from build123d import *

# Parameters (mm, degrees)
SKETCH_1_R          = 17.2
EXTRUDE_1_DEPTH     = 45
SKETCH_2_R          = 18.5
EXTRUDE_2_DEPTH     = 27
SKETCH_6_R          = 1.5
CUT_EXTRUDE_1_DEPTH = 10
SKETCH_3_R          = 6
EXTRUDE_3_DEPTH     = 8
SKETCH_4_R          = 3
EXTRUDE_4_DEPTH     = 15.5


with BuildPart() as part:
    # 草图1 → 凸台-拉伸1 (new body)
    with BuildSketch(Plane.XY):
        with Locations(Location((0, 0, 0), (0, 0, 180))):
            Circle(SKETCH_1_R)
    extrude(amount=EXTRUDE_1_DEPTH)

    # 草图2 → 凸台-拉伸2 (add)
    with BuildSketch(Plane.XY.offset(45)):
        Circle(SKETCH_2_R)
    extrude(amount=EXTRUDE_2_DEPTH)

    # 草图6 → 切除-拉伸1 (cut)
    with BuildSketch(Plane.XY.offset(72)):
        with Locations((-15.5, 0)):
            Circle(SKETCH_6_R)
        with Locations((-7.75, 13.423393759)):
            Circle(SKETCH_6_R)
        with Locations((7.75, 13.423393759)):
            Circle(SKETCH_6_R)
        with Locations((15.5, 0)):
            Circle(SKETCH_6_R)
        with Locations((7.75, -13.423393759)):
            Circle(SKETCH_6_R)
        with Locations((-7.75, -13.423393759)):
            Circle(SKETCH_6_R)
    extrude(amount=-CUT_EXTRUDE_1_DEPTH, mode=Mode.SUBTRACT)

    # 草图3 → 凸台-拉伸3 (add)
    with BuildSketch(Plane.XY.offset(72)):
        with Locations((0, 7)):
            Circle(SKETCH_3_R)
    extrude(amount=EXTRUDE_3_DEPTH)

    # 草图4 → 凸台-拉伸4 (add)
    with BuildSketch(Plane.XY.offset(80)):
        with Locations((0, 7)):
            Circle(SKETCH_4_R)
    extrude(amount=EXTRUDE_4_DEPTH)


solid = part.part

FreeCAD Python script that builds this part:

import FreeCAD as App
import Part
import Sketcher
Q = App.Units.Quantity

doc = App.newDocument("Part")
body = doc.addObject("PartDesign::Body", "Body")

sketch1 = doc.addObject("Sketcher::SketchObject", "Sketch")
body.addObject(sketch1)
sketch1.AttachmentSupport = (doc.XY_Plane, [""])
sketch1.MapMode = "FlatFace"
sketch1.addGeometry(Part.Circle(App.Vector(0, 0, 0), App.Vector(0, 0, 1), 17.2), False)
sketch1.addConstraint([
    Sketcher.Constraint("Coincident", 0, 3, -1, 1),
    Sketcher.Constraint("Diameter", 0, Q("34.4 mm")),
])
pad1 = doc.addObject("PartDesign::Pad", "Pad")
body.addObject(pad1)
pad1.Profile = sketch1
pad1.Length = 45

sketch2 = doc.addObject("Sketcher::SketchObject", "Sketch001")
body.addObject(sketch2)
sketch2.AttachmentSupport = (doc.XY_Plane, [""])
sketch2.MapMode = "FlatFace"
sketch2.AttachmentOffset = App.Placement(App.Vector(0, 0, 45), App.Rotation())
sketch2.addGeometry(Part.Circle(App.Vector(0, 0, 0), App.Vector(0, 0, 1), 18.5), False)
sketch2.addConstraint([
    Sketcher.Constraint("Coincident", 0, 3, -1, 1),
    Sketcher.Constraint("Diameter", 0, Q("37 mm")),
])
pad2 = doc.addObject("PartDesign::Pad", "Pad001")
body.addObject(pad2)
pad2.Profile = sketch2
pad2.Length = 27

sketch3 = doc.addObject("Sketcher::SketchObject", "Sketch002")
body.addObject(sketch3)
sketch3.AttachmentSupport = (doc.XY_Plane, [""])
sketch3.MapMode = "FlatFace"
sketch3.AttachmentOffset = App.Placement(App.Vector(0, 0, 72), App.Rotation())
sketch3.addGeometry([
    Part.Circle(App.Vector(-15.5, 0, 0), App.Vector(0, 0, 1), 1.5),
    Part.Circle(App.Vector(-7.75, 13.423394, 0), App.Vector(0, 0, 1), 1.5),
    Part.Circle(App.Vector(7.75, 13.423394, 0), App.Vector(0, 0, 1), 1.5),
    Part.Circle(App.Vector(15.5, 0, 0), App.Vector(0, 0, 1), 1.5),
    Part.Circle(App.Vector(7.75, -13.423394, 0), App.Vector(0, 0, 1), 1.5),
    Part.Circle(App.Vector(-7.75, -13.423394, 0), App.Vector(0, 0, 1), 1.5),
], False)
sketch3.addConstraint([
    Sketcher.Constraint("Equal", 0, 1),
    Sketcher.Constraint("Equal", 1, 2),
    Sketcher.Constraint("Equal", 2, 3),
    Sketcher.Constraint("Equal", 3, 4),
    Sketcher.Constraint("Equal", 4, 5),
    Sketcher.Constraint("Symmetric", 0, 3, 3, 3, -1, 1),
    Sketcher.Constraint("Symmetric", 1, 3, 4, 3, -1, 1),
    Sketcher.Constraint("Symmetric", 2, 3, 5, 3, -1, 1),
    Sketcher.Constraint("Symmetric", 1, 3, 2, 3, -2),
    Sketcher.Constraint("PointOnObject", 0, 3, -1),
    Sketcher.Constraint("Diameter", 0, Q("3 mm")),
    Sketcher.Constraint("DistanceX", 0, 3, 3, 3, Q("31 mm")),
    Sketcher.Constraint("DistanceX", 1, 3, 2, 3, Q("15.5 mm")),
    Sketcher.Constraint("DistanceY", -1, 1, 1, 3, Q("13.423394 mm")),
])
pocket1 = doc.addObject("PartDesign::Pocket", "Pocket")
body.addObject(pocket1)
pocket1.Profile = sketch3
pocket1.Length = 10

sketch4 = doc.addObject("Sketcher::SketchObject", "Sketch003")
body.addObject(sketch4)
sketch4.AttachmentSupport = (doc.XY_Plane, [""])
sketch4.MapMode = "FlatFace"
sketch4.AttachmentOffset = App.Placement(App.Vector(0, 0, 72), App.Rotation())
sketch4.addGeometry(Part.Circle(App.Vector(0, 7, 0), App.Vector(0, 0, 1), 6), False)
sketch4.addConstraint([
    Sketcher.Constraint("PointOnObject", 0, 3, -2),
    Sketcher.Constraint("Diameter", 0, Q("12 mm")),
    Sketcher.Constraint("DistanceY", -1, 1, 0, 3, Q("7 mm")),
])
pad3 = doc.addObject("PartDesign::Pad", "Pad002")
body.addObject(pad3)
pad3.Profile = sketch4
pad3.Length = 8

sketch5 = doc.addObject("Sketcher::SketchObject", "Sketch004")
body.addObject(sketch5)
sketch5.AttachmentSupport = (doc.XY_Plane, [""])
sketch5.MapMode = "FlatFace"
sketch5.AttachmentOffset = App.Placement(App.Vector(0, 0, 80), App.Rotation())
sketch5.addGeometry(Part.Circle(App.Vector(0, 7, 0), App.Vector(0, 0, 1), 3), False)
sketch5.addConstraint([
    Sketcher.Constraint("PointOnObject", 0, 3, -2),
    Sketcher.Constraint("Diameter", 0, Q("6 mm")),
    Sketcher.Constraint("DistanceY", -1, 1, 0, 3, Q("7 mm")),
])
pad4 = doc.addObject("PartDesign::Pad", "Pad003")
body.addObject(pad4)
pad4.Profile = sketch5
pad4.Length = 15.5

doc.recompute()
